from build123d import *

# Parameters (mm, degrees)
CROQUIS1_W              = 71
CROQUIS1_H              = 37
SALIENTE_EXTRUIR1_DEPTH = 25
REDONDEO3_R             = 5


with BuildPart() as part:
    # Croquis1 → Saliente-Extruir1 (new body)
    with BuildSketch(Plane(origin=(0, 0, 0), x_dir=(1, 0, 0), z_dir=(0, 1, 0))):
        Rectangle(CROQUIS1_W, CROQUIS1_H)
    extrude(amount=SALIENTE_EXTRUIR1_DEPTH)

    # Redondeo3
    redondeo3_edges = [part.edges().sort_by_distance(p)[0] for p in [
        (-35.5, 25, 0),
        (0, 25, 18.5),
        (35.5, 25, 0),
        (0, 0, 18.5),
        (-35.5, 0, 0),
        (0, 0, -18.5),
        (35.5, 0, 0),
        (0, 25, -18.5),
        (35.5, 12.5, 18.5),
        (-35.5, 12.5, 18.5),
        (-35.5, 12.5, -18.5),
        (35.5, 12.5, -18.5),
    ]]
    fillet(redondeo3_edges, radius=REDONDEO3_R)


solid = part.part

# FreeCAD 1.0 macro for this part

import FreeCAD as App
import Part
import Sketcher
from FreeCAD import Vector
Q = App.Units.Quantity

doc = App.newDocument("Part")
body = doc.addObject("PartDesign::Body", "Body")

# Sketch on XZ plane
sketch1 = body.newObject("Sketcher::SketchObject", "Sketch")
sketch1.AttachmentSupport = (doc.getObject("XZ_Plane"), [""])
sketch1.MapMode = "FlatFace"
sketch1.addGeometry([
    Part.LineSegment(Vector(-35.5, -18.5, 0), Vector(-35.5, 18.5, 0)),
    Part.LineSegment(Vector(-35.5, 18.5, 0), Vector(35.5, 18.5, 0)),
    Part.LineSegment(Vector(35.5, 18.5, 0), Vector(35.5, -18.5, 0)),
    Part.LineSegment(Vector(35.5, -18.5, 0), Vector(-35.5, -18.5, 0)),
], False)
sketch1.addConstraint([
    Sketcher.Constraint("Coincident", 0, 2, 1, 1),
    Sketcher.Constraint("Coincident", 1, 2, 2, 1),
    Sketcher.Constraint("Coincident", 2, 2, 3, 1),
    Sketcher.Constraint("Coincident", 3, 2, 0, 1),
    Sketcher.Constraint("Vertical", 0),
    Sketcher.Constraint("Horizontal", 1),
    Sketcher.Constraint("Vertical", 2),
    Sketcher.Constraint("Horizontal", 3),
    Sketcher.Constraint("Symmetric", 0, 2, 2, 2, -1, 1),
    Sketcher.Constraint("DistanceX", 1, 1, 1, 2, Q("71 mm")),
    Sketcher.Constraint("DistanceY", 0, 1, 0, 2, Q("37 mm")),
])
pad1 = body.newObject("PartDesign::Pad", "Pad")
pad1.Profile = sketch1
pad1.Length = 25
pad1.Reversed = True
doc.recompute()

fillet = body.newObject("PartDesign::Fillet", "Fillet")
fillet.Base = (pad1, ["Edge1"])
fillet.UseAllEdges = True
fillet.Radius = 5

doc.recompute()
